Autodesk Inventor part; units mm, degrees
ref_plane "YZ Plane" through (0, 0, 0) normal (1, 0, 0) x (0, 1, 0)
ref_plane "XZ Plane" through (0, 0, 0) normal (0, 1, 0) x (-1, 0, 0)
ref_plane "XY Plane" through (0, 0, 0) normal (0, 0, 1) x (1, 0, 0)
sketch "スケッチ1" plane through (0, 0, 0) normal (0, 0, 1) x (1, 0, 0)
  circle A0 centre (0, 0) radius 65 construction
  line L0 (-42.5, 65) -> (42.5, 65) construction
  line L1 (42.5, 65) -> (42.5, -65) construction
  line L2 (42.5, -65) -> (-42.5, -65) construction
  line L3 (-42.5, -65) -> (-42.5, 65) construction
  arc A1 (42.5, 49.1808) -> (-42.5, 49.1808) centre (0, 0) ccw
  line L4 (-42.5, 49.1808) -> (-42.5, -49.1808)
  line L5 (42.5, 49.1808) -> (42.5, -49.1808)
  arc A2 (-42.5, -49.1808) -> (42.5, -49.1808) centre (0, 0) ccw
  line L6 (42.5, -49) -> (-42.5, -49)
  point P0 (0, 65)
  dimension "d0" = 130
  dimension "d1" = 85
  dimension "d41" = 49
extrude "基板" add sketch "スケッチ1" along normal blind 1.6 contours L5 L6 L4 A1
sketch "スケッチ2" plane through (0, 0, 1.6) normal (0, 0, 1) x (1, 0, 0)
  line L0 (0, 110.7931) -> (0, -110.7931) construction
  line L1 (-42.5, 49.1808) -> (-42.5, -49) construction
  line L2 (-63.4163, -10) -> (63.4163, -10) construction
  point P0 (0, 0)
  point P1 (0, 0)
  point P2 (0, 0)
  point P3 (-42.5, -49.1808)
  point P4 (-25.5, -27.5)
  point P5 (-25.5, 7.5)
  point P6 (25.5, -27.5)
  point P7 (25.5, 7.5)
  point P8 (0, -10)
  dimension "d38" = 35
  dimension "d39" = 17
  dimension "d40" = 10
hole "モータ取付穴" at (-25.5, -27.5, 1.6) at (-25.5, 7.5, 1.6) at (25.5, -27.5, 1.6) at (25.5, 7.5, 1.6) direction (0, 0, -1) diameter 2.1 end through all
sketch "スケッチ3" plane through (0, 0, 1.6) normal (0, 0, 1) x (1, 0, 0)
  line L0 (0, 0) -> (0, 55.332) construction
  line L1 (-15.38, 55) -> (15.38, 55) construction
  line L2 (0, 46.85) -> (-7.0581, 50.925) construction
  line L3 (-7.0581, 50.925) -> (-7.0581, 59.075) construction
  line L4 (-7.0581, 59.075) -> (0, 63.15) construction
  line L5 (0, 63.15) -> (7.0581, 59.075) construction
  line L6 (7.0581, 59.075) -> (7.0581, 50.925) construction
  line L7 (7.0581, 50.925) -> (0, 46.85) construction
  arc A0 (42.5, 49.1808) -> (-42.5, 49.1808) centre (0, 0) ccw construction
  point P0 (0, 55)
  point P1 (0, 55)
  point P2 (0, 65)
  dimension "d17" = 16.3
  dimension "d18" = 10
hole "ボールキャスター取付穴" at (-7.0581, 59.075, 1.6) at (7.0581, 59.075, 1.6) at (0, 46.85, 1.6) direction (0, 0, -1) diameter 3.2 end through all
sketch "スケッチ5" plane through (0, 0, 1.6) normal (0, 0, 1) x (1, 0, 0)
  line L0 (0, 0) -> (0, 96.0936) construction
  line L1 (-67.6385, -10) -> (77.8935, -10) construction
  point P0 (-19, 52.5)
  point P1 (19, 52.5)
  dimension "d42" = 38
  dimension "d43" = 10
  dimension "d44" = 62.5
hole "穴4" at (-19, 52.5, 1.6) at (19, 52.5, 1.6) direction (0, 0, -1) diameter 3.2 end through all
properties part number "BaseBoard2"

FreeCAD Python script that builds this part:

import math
import FreeCAD as App
import Part
import Sketcher

doc = App.newDocument("Part")
params = doc.addObject("Spreadsheet::Sheet", "Params")
for row, (alias, value) in enumerate([
    ("sketch1_radius", "65 mm"),
    ("sketch1_width", "85 mm"),
    ("pad1_length", "1.6 mm"),
    ("sketch2_diameter", "2.1 mm"),
    ("hole_diameter", "2.1 mm"),
    ("sketch3_diameter", "3.2 mm"),
    ("hole2_diameter", "3.2 mm"),
    ("sketch4_diameter", "3.2 mm"),
    ("hole3_diameter", "3.2 mm"),
], start=1):
    params.set(f"A{row}", alias)
    params.set(f"B{row}", "=" + value)
    params.setAlias(f"B{row}", alias)

body = doc.addObject("PartDesign::Body", "Body")

# Sketch on XY plane
sketch1 = body.newObject("Sketcher::SketchObject", "Sketch")
sketch1.AttachmentSupport = (doc.getObject("XY_Plane"), [""])
sketch1.MapMode = "FlatFace"
sketch1.addGeometry([
    Part.LineSegment(App.Vector(42, -49, 0), App.Vector(42, 49, 0)),
    Part.ArcOfCircle(Part.Circle(App.Vector(0, 0, 0), App.Vector(0, 0, 1), 65), math.radians(49), math.radians(131)),
    Part.LineSegment(App.Vector(-42, 49, 0), App.Vector(-42, -49, 0)),
    Part.LineSegment(App.Vector(-42, -49, 0), App.Vector(42, -49, 0)),
], False)
sketch1.addConstraint([
    Sketcher.Constraint("Coincident", 0, 2, 1, 1),
    Sketcher.Constraint("Coincident", 1, 2, 2, 1),
    Sketcher.Constraint("Coincident", 2, 2, 3, 1),
    Sketcher.Constraint("Coincident", 3, 2, 0, 1),
    Sketcher.Constraint("Vertical", 0),
    Sketcher.Constraint("Vertical", 2),
    Sketcher.Constraint("Horizontal", 3),
    Sketcher.Constraint("Coincident", 1, 3, -1, 1),
    Sketcher.Constraint("Horizontal", 0, 2, 1, 2),
    Sketcher.Constraint("Radius", 1, 65.0),
    Sketcher.Constraint("DistanceX", 3, 1, 3, 2, 85.0),
    Sketcher.Constraint("DistanceY", 2, 2, -1, 1, 49.0),
])
sketch1.setExpression("Constraints[9]", "Params.sketch1_radius")
sketch1.setExpression("Constraints[10]", "Params.sketch1_width")
pad1 = body.newObject("PartDesign::Pad", "Pad")
pad1.Profile = sketch1
pad1.setExpression("Length", "Params.pad1_length")

# Sketch on XY plane
sketch2 = body.newObject("Sketcher::SketchObject", "Sketch001")
sketch2.AttachmentSupport = (doc.getObject("XY_Plane"), [""])
sketch2.MapMode = "FlatFace"
sketch2.AttachmentOffset = App.Placement(App.Vector(0, 0, 1.6), App.Rotation())
sketch2.addGeometry([
    Part.Circle(App.Vector(-25.5, -27.5, 0), App.Vector(0, 0, 1), 1.1),
    Part.Circle(App.Vector(-25.5, 7.5, 0), App.Vector(0, 0, 1), 1.1),
    Part.Circle(App.Vector(25.5, -27.5, 0), App.Vector(0, 0, 1), 1.1),
    Part.Circle(App.Vector(25.5, 7.5, 0), App.Vector(0, 0, 1), 1.1),
], False)
sketch2.addConstraint([
    Sketcher.Constraint("Equal", 0, 1),
    Sketcher.Constraint("Equal", 1, 2),
    Sketcher.Constraint("Equal", 2, 3),
    Sketcher.Constraint("Symmetric", 0, 3, 2, 3, -2),
    Sketcher.Constraint("Symmetric", 1, 3, 3, 3, -2),
    Sketcher.Constraint("Vertical", 0, 3, 1, 3),
    Sketcher.Constraint("Diameter", 0, 2.1),
    Sketcher.Constraint("DistanceY", 0, 3, 1, 3, 35.0),
    Sketcher.Constraint("DistanceX", 0, 3, 2, 3, 51.0),
    Sketcher.Constraint("DistanceY", 0, 3, -1, 1, 27.5),
])
sketch2.setExpression("Constraints[6]", "Params.sketch2_diameter")
doc.recompute()
hole = body.newObject("PartDesign::Hole", "Hole")
hole.Profile = sketch2
hole.ThreadType = "None"
hole.setExpression("Diameter", "Params.hole_diameter")
hole.DepthType = "ThroughAll"

# Sketch on XY plane
sketch3 = body.newObject("Sketcher::SketchObject", "Sketch002")
sketch3.AttachmentSupport = (doc.getObject("XY_Plane"), [""])
sketch3.MapMode = "FlatFace"
sketch3.AttachmentOffset = App.Placement(App.Vector(0, 0, 1.6), App.Rotation())
sketch3.addGeometry([
    Part.Circle(App.Vector(-7.1, 59.1, 0), App.Vector(0, 0, 1), 1.6),
    Part.Circle(App.Vector(7.1, 59.1, 0), App.Vector(0, 0, 1), 1.6),
    Part.Circle(App.Vector(0, 46.9, 0), App.Vector(0, 0, 1), 1.6),
], False)
sketch3.addConstraint([
    Sketcher.Constraint("Equal", 0, 1),
    Sketcher.Constraint("Equal", 1, 2),
    Sketcher.Constraint("Symmetric", 0, 3, 1, 3, -2),
    Sketcher.Constraint("PointOnObject", 2, 3, -2),
    Sketcher.Constraint("Diameter", 0, 3.2),
    Sketcher.Constraint("DistanceY", -1, 1, 2, 3, 46.85),
    Sketcher.Constraint("DistanceX", 0, 3, -1, 1, 7.058),
    Sketcher.Constraint("DistanceY", -1, 1, 0, 3, 59.075),
])
sketch3.setExpression("Constraints[4]", "Params.sketch3_diameter")
doc.recompute()
hole2 = body.newObject("PartDesign::Hole", "Hole001")
hole2.Profile = sketch3
hole2.ThreadType = "None"
hole2.setExpression("Diameter", "Params.hole2_diameter")
hole2.DepthType = "ThroughAll"

# Sketch on XY plane
sketch4 = body.newObject("Sketcher::SketchObject", "Sketch003")
sketch4.AttachmentSupport = (doc.getObject("XY_Plane"), [""])
sketch4.MapMode = "FlatFace"
sketch4.AttachmentOffset = App.Placement(App.Vector(0, 0, 1.6), App.Rotation())
sketch4.addGeometry([
    Part.Circle(App.Vector(-19, 52.5, 0), App.Vector(0, 0, 1), 1.6),
    Part.Circle(App.Vector(19, 52.5, 0), App.Vector(0, 0, 1), 1.6),
], False)
sketch4.addConstraint([
    Sketcher.Constraint("Equal", 0, 1),
    Sketcher.Constraint("Symmetric", 0, 3, 1, 3, -2),
    Sketcher.Constraint("Diameter", 0, 3.2),
    Sketcher.Constraint("DistanceX", 0, 3, -1, 1, 19.0),
    Sketcher.Constraint("DistanceY", -1, 1, 0, 3, 52.5),
])
sketch4.setExpression("Constraints[2]", "Params.sketch4_diameter")
doc.recompute()
hole3 = body.newObject("PartDesign::Hole", "Hole002")
hole3.Profile = sketch4
hole3.ThreadType = "None"
hole3.setExpression("Diameter", "Params.hole3_diameter")
hole3.DepthType = "ThroughAll"

doc.recompute()
